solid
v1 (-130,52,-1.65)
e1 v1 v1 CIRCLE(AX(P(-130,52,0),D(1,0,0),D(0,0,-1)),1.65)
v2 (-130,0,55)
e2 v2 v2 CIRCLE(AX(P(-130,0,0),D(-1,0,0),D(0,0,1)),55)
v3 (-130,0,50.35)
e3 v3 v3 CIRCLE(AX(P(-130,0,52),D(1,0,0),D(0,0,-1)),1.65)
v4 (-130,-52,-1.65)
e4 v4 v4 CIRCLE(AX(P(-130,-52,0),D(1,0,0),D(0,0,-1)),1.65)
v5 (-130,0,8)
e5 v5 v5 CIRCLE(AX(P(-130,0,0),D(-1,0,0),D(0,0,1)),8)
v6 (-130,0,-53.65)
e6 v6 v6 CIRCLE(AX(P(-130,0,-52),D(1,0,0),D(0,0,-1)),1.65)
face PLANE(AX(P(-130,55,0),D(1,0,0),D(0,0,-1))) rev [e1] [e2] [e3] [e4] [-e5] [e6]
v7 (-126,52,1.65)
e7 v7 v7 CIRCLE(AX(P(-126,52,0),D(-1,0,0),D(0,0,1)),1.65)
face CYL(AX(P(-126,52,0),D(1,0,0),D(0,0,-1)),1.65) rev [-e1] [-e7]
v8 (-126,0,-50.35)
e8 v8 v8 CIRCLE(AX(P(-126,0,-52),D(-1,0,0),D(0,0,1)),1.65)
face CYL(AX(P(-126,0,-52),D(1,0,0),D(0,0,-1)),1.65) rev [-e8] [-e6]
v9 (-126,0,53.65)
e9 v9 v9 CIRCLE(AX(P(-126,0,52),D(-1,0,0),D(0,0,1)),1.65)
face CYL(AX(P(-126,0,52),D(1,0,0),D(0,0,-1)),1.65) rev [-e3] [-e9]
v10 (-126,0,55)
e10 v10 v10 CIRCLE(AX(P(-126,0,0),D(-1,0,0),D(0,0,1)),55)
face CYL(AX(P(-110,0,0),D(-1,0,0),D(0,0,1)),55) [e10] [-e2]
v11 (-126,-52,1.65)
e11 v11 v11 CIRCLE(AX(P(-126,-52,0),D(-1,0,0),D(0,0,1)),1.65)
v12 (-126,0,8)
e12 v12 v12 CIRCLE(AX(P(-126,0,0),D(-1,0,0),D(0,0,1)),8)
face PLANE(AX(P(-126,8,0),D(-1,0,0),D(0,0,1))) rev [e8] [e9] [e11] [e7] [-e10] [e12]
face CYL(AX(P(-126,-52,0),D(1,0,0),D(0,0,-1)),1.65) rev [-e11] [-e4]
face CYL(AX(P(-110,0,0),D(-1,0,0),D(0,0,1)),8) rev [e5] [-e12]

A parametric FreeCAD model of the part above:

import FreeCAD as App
import Part
import Sketcher
from FreeCAD import Vector
Q = App.Units.Quantity


def add_polygon(sketch, points):
    """Adds a closed chain of lines whose ends are joined by coincident constraints."""
    first, n = sketch.GeometryCount, len(points)
    for a, b in zip(points, points[1:] + points[:1]):
        sketch.addGeometry(Part.LineSegment(App.Vector(*a, 0), App.Vector(*b, 0)), False)
    for i in range(n):
        sketch.addConstraint(Sketcher.Constraint("Coincident", first + i, 2, first + (i + 1) % n, 1))

doc = App.newDocument("Part")
body = doc.addObject("PartDesign::Body", "Body")

# Sketch on XY plane
sketch1 = body.newObject("Sketcher::SketchObject", "Sketch")
sketch1.AttachmentSupport = (doc.getObject("XY_Plane"), [""])
sketch1.MapMode = "FlatFace"
add_polygon(sketch1, [(-130, 55), (-130, 8), (-126, 8), (-126, 55)])  # lines 0-3
sketch1.addConstraint([
    Sketcher.Constraint("Vertical", 0),
    Sketcher.Constraint("Horizontal", 1),
    Sketcher.Constraint("Vertical", 2),
    Sketcher.Constraint("Horizontal", 3),
    Sketcher.Constraint("DistanceX", 1, 1, 1, 2, Q("4 mm")),
    Sketcher.Constraint("DistanceY", 0, 2, 0, 1, Q("47 mm")),
    Sketcher.Constraint("DistanceX", 0, 2, -1, 1, Q("130 mm")),
    Sketcher.Constraint("DistanceY", -1, 1, 0, 2, Q("8 mm")),
])
revolution = body.newObject("PartDesign::Revolution", "Revolution")
revolution.Profile = sketch1
revolution.ReferenceAxis = (sketch1, ["H_Axis"])
revolution.Angle = 360

# Sketch on YZ plane
sketch2 = body.newObject("Sketcher::SketchObject", "Sketch001")
sketch2.AttachmentSupport = (doc.getObject("YZ_Plane"), [""])
sketch2.MapMode = "FlatFace"
sketch2.addGeometry([
    Part.Circle(Vector(52, 0, 0), Vector(0, 0, 1), 1.6),
    Part.Circle(Vector(0, 52, 0), Vector(0, 0, 1), 1.6),
    Part.Circle(Vector(-52, 0, 0), Vector(0, 0, 1), 1.6),
    Part.Circle(Vector(0, -52, 0), Vector(0, 0, 1), 1.6),
], False)
sketch2.addConstraint([
    Sketcher.Constraint("Equal", 0, 1),
    Sketcher.Constraint("Equal", 1, 2),
    Sketcher.Constraint("Equal", 2, 3),
    Sketcher.Constraint("Symmetric", 0, 3, 2, 3, -1, 1),
    Sketcher.Constraint("Symmetric", 1, 3, 3, 3, -1, 1),
    Sketcher.Constraint("PointOnObject", 0, 3, -1),
    Sketcher.Constraint("PointOnObject", 1, 3, -2),
    Sketcher.Constraint("Diameter", 0, Q("3.3 mm")),
    Sketcher.Constraint("DistanceX", -1, 1, 0, 3, Q("52 mm")),
    Sketcher.Constraint("DistanceY", -1, 1, 1, 3, Q("52 mm")),
])
pocket1 = body.newObject("PartDesign::Pocket", "Pocket")
pocket1.Profile = sketch2
pocket1.Type = "ThroughAll"
pocket1.Midplane = True

doc.recompute()
